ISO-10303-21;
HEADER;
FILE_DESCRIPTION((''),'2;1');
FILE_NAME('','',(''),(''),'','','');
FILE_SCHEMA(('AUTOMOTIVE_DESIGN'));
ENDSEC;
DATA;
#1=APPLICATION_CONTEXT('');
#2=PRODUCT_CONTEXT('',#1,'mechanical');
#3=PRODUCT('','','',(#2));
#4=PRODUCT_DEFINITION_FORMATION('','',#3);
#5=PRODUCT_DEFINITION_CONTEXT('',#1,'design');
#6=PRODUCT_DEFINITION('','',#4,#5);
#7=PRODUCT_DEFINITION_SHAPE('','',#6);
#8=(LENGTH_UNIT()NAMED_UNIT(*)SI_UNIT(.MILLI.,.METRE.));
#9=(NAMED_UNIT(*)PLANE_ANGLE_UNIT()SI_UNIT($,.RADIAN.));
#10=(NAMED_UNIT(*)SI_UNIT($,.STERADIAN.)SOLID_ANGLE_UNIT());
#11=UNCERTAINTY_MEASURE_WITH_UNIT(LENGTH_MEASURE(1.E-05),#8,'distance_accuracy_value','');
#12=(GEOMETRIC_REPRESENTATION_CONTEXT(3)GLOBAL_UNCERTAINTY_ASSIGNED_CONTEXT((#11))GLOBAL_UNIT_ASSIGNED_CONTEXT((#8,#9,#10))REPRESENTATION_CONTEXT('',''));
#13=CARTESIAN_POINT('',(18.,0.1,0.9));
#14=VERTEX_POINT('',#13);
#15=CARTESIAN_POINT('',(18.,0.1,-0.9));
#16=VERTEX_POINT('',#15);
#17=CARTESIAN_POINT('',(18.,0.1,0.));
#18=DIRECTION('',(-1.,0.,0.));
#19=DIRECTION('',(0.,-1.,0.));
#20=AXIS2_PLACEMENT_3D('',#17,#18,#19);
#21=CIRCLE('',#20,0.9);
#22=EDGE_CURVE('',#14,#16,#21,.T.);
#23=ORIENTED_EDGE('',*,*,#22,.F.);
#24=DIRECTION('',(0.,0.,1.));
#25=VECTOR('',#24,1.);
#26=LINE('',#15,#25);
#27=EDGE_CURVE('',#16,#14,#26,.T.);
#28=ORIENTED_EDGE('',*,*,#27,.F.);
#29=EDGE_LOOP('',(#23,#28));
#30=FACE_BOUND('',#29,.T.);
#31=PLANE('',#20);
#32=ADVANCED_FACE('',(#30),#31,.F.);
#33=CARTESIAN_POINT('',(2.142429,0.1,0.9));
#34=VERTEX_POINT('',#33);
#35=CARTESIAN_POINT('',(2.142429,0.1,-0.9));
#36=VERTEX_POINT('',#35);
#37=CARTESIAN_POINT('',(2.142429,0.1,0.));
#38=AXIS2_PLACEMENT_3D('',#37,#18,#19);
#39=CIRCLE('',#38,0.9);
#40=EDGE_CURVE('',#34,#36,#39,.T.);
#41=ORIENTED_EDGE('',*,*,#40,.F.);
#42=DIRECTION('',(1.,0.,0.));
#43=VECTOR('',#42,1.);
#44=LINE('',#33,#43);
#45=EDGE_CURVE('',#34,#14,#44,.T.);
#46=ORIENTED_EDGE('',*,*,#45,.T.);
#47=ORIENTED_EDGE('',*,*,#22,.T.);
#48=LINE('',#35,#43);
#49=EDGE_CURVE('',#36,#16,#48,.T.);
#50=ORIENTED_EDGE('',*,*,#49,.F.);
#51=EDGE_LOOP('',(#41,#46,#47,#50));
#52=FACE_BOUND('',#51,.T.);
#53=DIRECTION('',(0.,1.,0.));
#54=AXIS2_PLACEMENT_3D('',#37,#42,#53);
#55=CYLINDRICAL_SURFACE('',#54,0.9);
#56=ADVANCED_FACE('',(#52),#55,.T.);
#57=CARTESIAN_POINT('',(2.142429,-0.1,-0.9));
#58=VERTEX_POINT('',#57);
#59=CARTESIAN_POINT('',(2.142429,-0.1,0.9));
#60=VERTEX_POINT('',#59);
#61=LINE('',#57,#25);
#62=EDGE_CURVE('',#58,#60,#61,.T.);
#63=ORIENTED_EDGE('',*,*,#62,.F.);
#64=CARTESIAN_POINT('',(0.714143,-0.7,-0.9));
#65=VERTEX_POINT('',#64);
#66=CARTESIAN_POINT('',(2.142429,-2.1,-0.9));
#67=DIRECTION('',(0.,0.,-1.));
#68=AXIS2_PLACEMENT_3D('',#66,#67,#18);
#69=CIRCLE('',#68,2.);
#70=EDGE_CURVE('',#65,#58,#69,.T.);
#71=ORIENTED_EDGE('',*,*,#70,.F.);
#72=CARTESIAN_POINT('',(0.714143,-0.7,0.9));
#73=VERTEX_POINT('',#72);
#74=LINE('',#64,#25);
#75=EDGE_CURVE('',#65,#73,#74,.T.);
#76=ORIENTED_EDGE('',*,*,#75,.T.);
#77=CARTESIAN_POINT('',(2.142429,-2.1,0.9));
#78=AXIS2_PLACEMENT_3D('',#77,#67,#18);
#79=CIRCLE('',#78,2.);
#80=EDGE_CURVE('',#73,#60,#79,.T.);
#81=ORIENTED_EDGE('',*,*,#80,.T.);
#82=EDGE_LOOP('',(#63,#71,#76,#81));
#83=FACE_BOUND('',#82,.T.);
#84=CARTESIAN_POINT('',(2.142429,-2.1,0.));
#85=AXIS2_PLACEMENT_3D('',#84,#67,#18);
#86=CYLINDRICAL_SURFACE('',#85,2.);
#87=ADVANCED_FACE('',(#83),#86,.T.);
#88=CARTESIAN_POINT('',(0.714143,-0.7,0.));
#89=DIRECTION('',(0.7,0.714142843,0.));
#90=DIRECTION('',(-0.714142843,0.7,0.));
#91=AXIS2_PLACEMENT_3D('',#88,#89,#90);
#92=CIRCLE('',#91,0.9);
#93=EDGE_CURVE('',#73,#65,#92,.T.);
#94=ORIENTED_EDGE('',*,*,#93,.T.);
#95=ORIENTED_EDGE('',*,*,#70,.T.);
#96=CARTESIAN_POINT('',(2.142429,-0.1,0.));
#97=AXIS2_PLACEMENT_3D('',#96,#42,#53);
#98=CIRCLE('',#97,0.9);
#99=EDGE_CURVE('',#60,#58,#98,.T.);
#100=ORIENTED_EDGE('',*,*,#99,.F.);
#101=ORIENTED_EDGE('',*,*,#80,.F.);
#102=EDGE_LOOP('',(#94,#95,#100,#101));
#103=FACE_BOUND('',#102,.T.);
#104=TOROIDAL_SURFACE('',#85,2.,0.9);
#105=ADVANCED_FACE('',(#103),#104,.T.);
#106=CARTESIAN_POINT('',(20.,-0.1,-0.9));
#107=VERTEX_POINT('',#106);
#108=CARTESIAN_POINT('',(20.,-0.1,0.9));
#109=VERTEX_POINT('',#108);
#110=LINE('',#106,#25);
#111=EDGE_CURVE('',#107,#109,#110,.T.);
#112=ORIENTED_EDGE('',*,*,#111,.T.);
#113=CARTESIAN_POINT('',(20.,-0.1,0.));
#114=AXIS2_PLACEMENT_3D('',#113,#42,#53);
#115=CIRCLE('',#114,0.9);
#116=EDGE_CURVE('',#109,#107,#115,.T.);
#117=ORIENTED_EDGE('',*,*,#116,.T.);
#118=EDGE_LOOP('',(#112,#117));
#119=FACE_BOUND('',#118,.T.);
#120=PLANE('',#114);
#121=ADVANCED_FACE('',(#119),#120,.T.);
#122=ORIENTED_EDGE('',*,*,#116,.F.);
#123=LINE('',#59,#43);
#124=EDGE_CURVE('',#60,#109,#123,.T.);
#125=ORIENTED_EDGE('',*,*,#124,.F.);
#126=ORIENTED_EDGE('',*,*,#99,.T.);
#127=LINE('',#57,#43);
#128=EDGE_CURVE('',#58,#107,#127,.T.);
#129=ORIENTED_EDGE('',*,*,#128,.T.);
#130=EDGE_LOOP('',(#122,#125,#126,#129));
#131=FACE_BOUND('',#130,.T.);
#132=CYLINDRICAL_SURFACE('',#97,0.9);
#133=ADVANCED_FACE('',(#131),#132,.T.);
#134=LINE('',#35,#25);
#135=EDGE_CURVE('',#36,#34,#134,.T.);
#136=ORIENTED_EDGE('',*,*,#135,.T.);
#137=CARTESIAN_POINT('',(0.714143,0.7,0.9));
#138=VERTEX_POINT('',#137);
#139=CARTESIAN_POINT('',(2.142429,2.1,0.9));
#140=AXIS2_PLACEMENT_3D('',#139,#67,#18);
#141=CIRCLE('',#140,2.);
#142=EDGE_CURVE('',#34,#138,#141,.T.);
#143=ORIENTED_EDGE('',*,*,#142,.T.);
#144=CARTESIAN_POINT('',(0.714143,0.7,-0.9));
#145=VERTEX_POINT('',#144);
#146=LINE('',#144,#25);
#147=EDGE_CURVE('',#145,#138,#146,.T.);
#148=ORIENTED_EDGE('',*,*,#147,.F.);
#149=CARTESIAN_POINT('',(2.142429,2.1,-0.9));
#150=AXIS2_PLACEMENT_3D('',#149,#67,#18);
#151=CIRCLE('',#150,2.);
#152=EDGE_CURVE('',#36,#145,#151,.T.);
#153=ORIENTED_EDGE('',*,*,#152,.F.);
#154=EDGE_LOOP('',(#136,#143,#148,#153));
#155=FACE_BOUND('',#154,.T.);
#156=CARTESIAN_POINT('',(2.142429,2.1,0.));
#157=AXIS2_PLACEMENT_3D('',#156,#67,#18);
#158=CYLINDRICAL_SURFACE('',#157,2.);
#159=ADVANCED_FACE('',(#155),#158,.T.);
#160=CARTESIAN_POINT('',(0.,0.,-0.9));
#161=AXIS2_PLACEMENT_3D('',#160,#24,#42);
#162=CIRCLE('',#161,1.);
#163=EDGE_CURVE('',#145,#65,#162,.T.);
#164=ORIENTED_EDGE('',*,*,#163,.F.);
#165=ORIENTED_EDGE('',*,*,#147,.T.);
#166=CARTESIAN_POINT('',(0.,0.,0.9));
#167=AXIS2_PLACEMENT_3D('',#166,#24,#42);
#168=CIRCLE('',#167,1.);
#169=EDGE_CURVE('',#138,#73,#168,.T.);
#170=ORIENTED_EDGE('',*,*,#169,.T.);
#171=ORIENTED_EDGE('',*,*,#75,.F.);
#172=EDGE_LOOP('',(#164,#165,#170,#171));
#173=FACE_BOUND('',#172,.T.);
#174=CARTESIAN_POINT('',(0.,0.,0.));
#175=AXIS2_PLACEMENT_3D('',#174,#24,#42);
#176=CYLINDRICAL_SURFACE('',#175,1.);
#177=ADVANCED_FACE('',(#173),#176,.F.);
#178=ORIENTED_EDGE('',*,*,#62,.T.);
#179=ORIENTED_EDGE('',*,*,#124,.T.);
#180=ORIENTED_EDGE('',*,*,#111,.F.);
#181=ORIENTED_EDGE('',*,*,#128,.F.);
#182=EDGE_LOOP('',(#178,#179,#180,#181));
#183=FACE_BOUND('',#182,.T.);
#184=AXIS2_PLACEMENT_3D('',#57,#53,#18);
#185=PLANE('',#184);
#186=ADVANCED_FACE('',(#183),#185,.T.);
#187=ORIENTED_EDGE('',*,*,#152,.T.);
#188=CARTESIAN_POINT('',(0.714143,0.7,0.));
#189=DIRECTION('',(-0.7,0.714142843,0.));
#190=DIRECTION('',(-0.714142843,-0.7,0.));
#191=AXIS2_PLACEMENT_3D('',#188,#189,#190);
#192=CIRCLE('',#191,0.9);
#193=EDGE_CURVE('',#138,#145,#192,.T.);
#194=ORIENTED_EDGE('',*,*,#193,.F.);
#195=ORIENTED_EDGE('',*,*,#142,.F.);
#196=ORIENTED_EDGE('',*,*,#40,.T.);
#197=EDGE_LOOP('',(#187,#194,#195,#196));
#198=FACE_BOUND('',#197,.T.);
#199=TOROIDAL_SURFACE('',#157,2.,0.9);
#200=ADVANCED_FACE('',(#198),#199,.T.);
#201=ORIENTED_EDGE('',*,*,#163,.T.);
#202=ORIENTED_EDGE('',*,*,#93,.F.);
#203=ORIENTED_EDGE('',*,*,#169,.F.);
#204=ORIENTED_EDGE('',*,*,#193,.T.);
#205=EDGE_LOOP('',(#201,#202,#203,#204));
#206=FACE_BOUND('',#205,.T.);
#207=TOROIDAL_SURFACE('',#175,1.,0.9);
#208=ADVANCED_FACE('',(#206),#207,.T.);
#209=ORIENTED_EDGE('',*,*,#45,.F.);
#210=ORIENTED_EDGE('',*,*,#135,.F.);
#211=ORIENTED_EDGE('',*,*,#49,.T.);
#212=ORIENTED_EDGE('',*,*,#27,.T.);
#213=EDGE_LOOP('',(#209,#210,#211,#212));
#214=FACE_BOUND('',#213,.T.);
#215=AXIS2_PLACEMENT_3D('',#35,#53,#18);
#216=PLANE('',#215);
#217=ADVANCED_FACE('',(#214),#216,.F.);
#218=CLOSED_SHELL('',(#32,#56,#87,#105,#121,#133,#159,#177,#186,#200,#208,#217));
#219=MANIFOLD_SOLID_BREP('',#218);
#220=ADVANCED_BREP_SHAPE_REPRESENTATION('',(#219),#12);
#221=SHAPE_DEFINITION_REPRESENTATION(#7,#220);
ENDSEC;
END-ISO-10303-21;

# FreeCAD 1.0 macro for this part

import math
import FreeCAD as App
import Part
import Sketcher

V = App.Vector

doc = App.newDocument("Part")
body = doc.addObject("PartDesign::Body", "Body")

# Sketch on YZ plane
sketch1 = body.newObject("Sketcher::SketchObject", "Sketch")
sketch1.AttachmentSupport = (doc.getObject("YZ_Plane"), [""])
sketch1.MapMode = "FlatFace"
sketch1.AttachmentOffset = App.Placement(V(0, 0, 18), App.Rotation())
sketch1.addGeometry([
    Part.LineSegment(V(0.1, -0.9, 0), V(0.1, 0.9, 0)),
    Part.ArcOfCircle(Part.Circle(V(0.1, 0, 0), V(0, 0, 1), 0.9), math.radians(-90), math.radians(90)),
], False)
sketch1.addConstraint([
    Sketcher.Constraint("Coincident", 0, 1, 1, 1),
    Sketcher.Constraint("Coincident", 1, 2, 0, 2),
    Sketcher.Constraint("Vertical", 0),
    Sketcher.Constraint("PointOnObject", 1, 3, -1),
    Sketcher.Constraint("Vertical", 1, 3, 0, 1),
    Sketcher.Constraint("Radius", 1, 0.9),
    Sketcher.Constraint("DistanceX", -1, 1, 1, 3, 0.1),
])

# Sketch on XY plane
sketch2 = body.newObject("Sketcher::SketchObject", "Sketch001")
sketch2.AttachmentSupport = (doc.getObject("XY_Plane"), [""])
sketch2.MapMode = "FlatFace"
sketch2.addGeometry([
    Part.LineSegment(V(18, 0.1, 0), V(2.1, 0.1, 0)),  # 0
    Part.ArcOfCircle(Part.Circle(V(2.1, 2.1, 0), V(0, 0, 1), 2), math.radians(-136), math.radians(-90)),  # 1
    Part.ArcOfCircle(Part.Circle(V(0, 0, 0), V(0, 0, 1), 1), math.radians(44), math.radians(316)),  # 2
    Part.ArcOfCircle(Part.Circle(V(2.1, -2.1, 0), V(0, 0, 1), 2), math.radians(90), math.radians(136)),  # 3
    Part.LineSegment(V(2.1, -0.1, 0), V(20, -0.1, 0)),  # 4
], False)
sketch2.addConstraint([
    Sketcher.Constraint("Tangent", 0, 2, 1, 2),
    Sketcher.Constraint("Tangent", 1, 1, 2, 1),
    Sketcher.Constraint("Tangent", 2, 2, 3, 2),
    Sketcher.Constraint("Tangent", 3, 1, 4, 1),
    Sketcher.Constraint("Horizontal", 0),
    Sketcher.Constraint("Horizontal", 4),
    Sketcher.Constraint("Coincident", 2, 3, -1, 1),
    Sketcher.Constraint("Equal", 1, 3),
    Sketcher.Constraint("Vertical", 1, 3, 3, 3),
    Sketcher.Constraint("Radius", 1, 2.0),
    Sketcher.Constraint("Radius", 2, 1.0),
    Sketcher.Constraint("DistanceX", -1, 1, 0, 1, 18.0),
    Sketcher.Constraint("DistanceX", -1, 1, 4, 2, 20.0),
    Sketcher.Constraint("DistanceY", -1, 1, 1, 3, 2.1),
])
doc.recompute()

additivepipe = body.newObject("PartDesign::AdditivePipe", "AdditivePipe")
additivepipe.Profile = sketch1
additivepipe.Spine = (sketch2, ["Edge1", "Edge2", "Edge3", "Edge4", "Edge5"])

doc.recompute()
